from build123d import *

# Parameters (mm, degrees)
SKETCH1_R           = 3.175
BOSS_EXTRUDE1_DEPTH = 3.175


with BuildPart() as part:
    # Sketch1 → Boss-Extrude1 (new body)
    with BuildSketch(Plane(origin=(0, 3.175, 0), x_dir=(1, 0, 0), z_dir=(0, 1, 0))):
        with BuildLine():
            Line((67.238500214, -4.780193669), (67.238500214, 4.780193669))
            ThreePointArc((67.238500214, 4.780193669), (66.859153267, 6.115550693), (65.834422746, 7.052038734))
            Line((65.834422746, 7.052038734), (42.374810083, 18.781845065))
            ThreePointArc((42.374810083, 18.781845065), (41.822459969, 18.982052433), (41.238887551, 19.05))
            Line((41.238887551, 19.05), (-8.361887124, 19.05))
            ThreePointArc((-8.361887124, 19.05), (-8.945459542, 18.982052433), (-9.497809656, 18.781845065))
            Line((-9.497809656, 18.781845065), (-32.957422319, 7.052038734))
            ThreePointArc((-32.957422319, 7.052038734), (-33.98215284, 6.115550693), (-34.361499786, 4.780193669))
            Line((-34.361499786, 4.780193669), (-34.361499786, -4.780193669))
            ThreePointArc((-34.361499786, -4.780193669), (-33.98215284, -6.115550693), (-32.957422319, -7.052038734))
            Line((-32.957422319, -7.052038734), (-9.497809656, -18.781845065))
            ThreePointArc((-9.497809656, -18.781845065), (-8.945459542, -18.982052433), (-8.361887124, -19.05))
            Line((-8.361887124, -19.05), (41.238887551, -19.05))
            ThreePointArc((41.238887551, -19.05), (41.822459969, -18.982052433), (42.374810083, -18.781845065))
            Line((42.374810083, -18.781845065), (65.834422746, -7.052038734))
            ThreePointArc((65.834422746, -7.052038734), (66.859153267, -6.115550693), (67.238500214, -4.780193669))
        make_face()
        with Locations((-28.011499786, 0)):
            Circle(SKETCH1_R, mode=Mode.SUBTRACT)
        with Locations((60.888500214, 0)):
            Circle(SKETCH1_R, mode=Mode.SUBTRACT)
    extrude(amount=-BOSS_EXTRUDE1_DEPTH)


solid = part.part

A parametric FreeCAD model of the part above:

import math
import FreeCAD as App
import Part
import Sketcher
from FreeCAD import Vector
Q = App.Units.Quantity

doc = App.newDocument("Part")
body = doc.addObject("PartDesign::Body", "Body")

sketch1 = body.newObject("Sketcher::SketchObject", "Sketch")
sketch1.AttachmentSupport = (doc.getObject("XZ_Plane"), [""])
sketch1.MapMode = "FlatFace"
sketch1.AttachmentOffset = App.Placement(Vector(0, 0, -0.125 * 25.4), App.Rotation())
sketch1.addGeometry([
    Part.LineSegment(Vector(67.2385, 4.780194, 0), Vector(67.2385, -4.780194, 0)),
    Part.ArcOfCircle(Part.Circle(Vector(64.6985, -4.780194, 0), Vector(0, 0, 1), 2.54), math.radians(-63.434949), math.radians(0)),
    Part.LineSegment(Vector(65.834423, -7.052039, 0), Vector(42.37481, -18.781845, 0)),
    Part.ArcOfCircle(Part.Circle(Vector(41.238888, -16.51, 0), Vector(0, 0, 1), 2.54), math.radians(-90), math.radians(-63.434949)),
    Part.LineSegment(Vector(41.238888, -19.05, 0), Vector(-8.361887, -19.05, 0)),
    Part.ArcOfCircle(Part.Circle(Vector(-8.361887, -16.51, 0), Vector(0, 0, 1), 2.54), math.radians(-116.565051), math.radians(-90)),
    Part.LineSegment(Vector(-9.49781, -18.781845, 0), Vector(-32.957422, -7.052039, 0)),
    Part.ArcOfCircle(Part.Circle(Vector(-31.8215, -4.780194, 0), Vector(0, 0, 1), 2.54), math.radians(180), math.radians(243.434949)),
    Part.LineSegment(Vector(-34.3615, -4.780194, 0), Vector(-34.3615, 4.780194, 0)),
    Part.ArcOfCircle(Part.Circle(Vector(-31.8215, 4.780194, 0), Vector(0, 0, 1), 2.54), math.radians(116.565051), math.radians(180)),
    Part.LineSegment(Vector(-32.957422, 7.052039, 0), Vector(-9.49781, 18.781845, 0)),
    Part.ArcOfCircle(Part.Circle(Vector(-8.361887, 16.51, 0), Vector(0, 0, 1), 2.54), math.radians(90), math.radians(116.565051)),
    Part.LineSegment(Vector(-8.361887, 19.05, 0), Vector(41.238888, 19.05, 0)),
    Part.ArcOfCircle(Part.Circle(Vector(41.238888, 16.51, 0), Vector(0, 0, 1), 2.54), math.radians(63.434949), math.radians(90)),
    Part.LineSegment(Vector(42.37481, 18.781845, 0), Vector(65.834423, 7.052039, 0)),
    Part.ArcOfCircle(Part.Circle(Vector(64.6985, 4.780194, 0), Vector(0, 0, 1), 2.54), math.radians(0), math.radians(63.434949)),
    Part.Circle(Vector(-28.0115, 0, 0), Vector(0, 0, 1), 3.175),
    Part.Circle(Vector(60.8885, 0, 0), Vector(0, 0, 1), 3.175),
], False)
sketch1.addConstraint([
    Sketcher.Constraint("Tangent", 0, 2, 1, 2),
    Sketcher.Constraint("Tangent", 1, 1, 2, 1),
    Sketcher.Constraint("Tangent", 2, 2, 3, 2),
    Sketcher.Constraint("Tangent", 3, 1, 4, 1),
    Sketcher.Constraint("Tangent", 4, 2, 5, 2),
    Sketcher.Constraint("Tangent", 5, 1, 6, 1),
    Sketcher.Constraint("Tangent", 6, 2, 7, 2),
    Sketcher.Constraint("Tangent", 7, 1, 8, 1),
    Sketcher.Constraint("Tangent", 8, 2, 9, 2),
    Sketcher.Constraint("Tangent", 9, 1, 10, 1),
    Sketcher.Constraint("Tangent", 10, 2, 11, 2),
    Sketcher.Constraint("Tangent", 11, 1, 12, 1),
    Sketcher.Constraint("Tangent", 12, 2, 13, 2),
    Sketcher.Constraint("Tangent", 13, 1, 14, 1),
    Sketcher.Constraint("Tangent", 14, 2, 15, 2),
    Sketcher.Constraint("Tangent", 15, 1, 0, 1),
    Sketcher.Constraint("Vertical", 0),
    Sketcher.Constraint("Horizontal", 4),
    Sketcher.Constraint("Vertical", 8),
    Sketcher.Constraint("Horizontal", 12),
    Sketcher.Constraint("Equal", 1, 3),
    Sketcher.Constraint("Equal", 3, 5),
    Sketcher.Constraint("Equal", 5, 7),
    Sketcher.Constraint("Equal", 7, 9),
    Sketcher.Constraint("Equal", 9, 11),
    Sketcher.Constraint("Equal", 11, 13),
    Sketcher.Constraint("Equal", 13, 15),
    Sketcher.Constraint("Equal", 16, 17),
    Sketcher.Constraint("Symmetric", 5, 3, 11, 3, -1),
    Sketcher.Constraint("Symmetric", 2, 2, 13, 1, -1),
    Sketcher.Constraint("PointOnObject", 16, 3, -1),
    Sketcher.Constraint("PointOnObject", 17, 3, -1),
    Sketcher.Constraint("Parallel", 2, 10),
    Sketcher.Constraint("Parallel", 6, 14),
    Sketcher.Constraint("Horizontal", 1, 3, 7, 3),
    Sketcher.Constraint("Radius", 1, Q("0.1 in")),
    Sketcher.Constraint("Diameter", 16, Q("0.25 in")),
    Sketcher.Constraint("DistanceX", 7, 3, 1, 3, Q("3.8 in")),
    Sketcher.Constraint("DistanceY", 5, 3, 11, 3, Q("1.3 in")),
    Sketcher.Constraint("DistanceX", 7, 3, 16, 3, Q("0.15 in")),
    Sketcher.Constraint("DistanceX", 17, 3, 1, 3, Q("0.15 in")),
    Sketcher.Constraint("DistanceX", -1, 1, 1, 3, 64.6985),
    Sketcher.Constraint("DistanceX", 4, 2, 4, 1, 49.600775),
    Sketcher.Constraint("DistanceY", 0, 2, 0, 1, 9.560387),
])
pad1 = body.newObject("PartDesign::Pad", "Pad")
pad1.Profile = sketch1
pad1.Length = Q("0.125 in")

doc.recompute()
